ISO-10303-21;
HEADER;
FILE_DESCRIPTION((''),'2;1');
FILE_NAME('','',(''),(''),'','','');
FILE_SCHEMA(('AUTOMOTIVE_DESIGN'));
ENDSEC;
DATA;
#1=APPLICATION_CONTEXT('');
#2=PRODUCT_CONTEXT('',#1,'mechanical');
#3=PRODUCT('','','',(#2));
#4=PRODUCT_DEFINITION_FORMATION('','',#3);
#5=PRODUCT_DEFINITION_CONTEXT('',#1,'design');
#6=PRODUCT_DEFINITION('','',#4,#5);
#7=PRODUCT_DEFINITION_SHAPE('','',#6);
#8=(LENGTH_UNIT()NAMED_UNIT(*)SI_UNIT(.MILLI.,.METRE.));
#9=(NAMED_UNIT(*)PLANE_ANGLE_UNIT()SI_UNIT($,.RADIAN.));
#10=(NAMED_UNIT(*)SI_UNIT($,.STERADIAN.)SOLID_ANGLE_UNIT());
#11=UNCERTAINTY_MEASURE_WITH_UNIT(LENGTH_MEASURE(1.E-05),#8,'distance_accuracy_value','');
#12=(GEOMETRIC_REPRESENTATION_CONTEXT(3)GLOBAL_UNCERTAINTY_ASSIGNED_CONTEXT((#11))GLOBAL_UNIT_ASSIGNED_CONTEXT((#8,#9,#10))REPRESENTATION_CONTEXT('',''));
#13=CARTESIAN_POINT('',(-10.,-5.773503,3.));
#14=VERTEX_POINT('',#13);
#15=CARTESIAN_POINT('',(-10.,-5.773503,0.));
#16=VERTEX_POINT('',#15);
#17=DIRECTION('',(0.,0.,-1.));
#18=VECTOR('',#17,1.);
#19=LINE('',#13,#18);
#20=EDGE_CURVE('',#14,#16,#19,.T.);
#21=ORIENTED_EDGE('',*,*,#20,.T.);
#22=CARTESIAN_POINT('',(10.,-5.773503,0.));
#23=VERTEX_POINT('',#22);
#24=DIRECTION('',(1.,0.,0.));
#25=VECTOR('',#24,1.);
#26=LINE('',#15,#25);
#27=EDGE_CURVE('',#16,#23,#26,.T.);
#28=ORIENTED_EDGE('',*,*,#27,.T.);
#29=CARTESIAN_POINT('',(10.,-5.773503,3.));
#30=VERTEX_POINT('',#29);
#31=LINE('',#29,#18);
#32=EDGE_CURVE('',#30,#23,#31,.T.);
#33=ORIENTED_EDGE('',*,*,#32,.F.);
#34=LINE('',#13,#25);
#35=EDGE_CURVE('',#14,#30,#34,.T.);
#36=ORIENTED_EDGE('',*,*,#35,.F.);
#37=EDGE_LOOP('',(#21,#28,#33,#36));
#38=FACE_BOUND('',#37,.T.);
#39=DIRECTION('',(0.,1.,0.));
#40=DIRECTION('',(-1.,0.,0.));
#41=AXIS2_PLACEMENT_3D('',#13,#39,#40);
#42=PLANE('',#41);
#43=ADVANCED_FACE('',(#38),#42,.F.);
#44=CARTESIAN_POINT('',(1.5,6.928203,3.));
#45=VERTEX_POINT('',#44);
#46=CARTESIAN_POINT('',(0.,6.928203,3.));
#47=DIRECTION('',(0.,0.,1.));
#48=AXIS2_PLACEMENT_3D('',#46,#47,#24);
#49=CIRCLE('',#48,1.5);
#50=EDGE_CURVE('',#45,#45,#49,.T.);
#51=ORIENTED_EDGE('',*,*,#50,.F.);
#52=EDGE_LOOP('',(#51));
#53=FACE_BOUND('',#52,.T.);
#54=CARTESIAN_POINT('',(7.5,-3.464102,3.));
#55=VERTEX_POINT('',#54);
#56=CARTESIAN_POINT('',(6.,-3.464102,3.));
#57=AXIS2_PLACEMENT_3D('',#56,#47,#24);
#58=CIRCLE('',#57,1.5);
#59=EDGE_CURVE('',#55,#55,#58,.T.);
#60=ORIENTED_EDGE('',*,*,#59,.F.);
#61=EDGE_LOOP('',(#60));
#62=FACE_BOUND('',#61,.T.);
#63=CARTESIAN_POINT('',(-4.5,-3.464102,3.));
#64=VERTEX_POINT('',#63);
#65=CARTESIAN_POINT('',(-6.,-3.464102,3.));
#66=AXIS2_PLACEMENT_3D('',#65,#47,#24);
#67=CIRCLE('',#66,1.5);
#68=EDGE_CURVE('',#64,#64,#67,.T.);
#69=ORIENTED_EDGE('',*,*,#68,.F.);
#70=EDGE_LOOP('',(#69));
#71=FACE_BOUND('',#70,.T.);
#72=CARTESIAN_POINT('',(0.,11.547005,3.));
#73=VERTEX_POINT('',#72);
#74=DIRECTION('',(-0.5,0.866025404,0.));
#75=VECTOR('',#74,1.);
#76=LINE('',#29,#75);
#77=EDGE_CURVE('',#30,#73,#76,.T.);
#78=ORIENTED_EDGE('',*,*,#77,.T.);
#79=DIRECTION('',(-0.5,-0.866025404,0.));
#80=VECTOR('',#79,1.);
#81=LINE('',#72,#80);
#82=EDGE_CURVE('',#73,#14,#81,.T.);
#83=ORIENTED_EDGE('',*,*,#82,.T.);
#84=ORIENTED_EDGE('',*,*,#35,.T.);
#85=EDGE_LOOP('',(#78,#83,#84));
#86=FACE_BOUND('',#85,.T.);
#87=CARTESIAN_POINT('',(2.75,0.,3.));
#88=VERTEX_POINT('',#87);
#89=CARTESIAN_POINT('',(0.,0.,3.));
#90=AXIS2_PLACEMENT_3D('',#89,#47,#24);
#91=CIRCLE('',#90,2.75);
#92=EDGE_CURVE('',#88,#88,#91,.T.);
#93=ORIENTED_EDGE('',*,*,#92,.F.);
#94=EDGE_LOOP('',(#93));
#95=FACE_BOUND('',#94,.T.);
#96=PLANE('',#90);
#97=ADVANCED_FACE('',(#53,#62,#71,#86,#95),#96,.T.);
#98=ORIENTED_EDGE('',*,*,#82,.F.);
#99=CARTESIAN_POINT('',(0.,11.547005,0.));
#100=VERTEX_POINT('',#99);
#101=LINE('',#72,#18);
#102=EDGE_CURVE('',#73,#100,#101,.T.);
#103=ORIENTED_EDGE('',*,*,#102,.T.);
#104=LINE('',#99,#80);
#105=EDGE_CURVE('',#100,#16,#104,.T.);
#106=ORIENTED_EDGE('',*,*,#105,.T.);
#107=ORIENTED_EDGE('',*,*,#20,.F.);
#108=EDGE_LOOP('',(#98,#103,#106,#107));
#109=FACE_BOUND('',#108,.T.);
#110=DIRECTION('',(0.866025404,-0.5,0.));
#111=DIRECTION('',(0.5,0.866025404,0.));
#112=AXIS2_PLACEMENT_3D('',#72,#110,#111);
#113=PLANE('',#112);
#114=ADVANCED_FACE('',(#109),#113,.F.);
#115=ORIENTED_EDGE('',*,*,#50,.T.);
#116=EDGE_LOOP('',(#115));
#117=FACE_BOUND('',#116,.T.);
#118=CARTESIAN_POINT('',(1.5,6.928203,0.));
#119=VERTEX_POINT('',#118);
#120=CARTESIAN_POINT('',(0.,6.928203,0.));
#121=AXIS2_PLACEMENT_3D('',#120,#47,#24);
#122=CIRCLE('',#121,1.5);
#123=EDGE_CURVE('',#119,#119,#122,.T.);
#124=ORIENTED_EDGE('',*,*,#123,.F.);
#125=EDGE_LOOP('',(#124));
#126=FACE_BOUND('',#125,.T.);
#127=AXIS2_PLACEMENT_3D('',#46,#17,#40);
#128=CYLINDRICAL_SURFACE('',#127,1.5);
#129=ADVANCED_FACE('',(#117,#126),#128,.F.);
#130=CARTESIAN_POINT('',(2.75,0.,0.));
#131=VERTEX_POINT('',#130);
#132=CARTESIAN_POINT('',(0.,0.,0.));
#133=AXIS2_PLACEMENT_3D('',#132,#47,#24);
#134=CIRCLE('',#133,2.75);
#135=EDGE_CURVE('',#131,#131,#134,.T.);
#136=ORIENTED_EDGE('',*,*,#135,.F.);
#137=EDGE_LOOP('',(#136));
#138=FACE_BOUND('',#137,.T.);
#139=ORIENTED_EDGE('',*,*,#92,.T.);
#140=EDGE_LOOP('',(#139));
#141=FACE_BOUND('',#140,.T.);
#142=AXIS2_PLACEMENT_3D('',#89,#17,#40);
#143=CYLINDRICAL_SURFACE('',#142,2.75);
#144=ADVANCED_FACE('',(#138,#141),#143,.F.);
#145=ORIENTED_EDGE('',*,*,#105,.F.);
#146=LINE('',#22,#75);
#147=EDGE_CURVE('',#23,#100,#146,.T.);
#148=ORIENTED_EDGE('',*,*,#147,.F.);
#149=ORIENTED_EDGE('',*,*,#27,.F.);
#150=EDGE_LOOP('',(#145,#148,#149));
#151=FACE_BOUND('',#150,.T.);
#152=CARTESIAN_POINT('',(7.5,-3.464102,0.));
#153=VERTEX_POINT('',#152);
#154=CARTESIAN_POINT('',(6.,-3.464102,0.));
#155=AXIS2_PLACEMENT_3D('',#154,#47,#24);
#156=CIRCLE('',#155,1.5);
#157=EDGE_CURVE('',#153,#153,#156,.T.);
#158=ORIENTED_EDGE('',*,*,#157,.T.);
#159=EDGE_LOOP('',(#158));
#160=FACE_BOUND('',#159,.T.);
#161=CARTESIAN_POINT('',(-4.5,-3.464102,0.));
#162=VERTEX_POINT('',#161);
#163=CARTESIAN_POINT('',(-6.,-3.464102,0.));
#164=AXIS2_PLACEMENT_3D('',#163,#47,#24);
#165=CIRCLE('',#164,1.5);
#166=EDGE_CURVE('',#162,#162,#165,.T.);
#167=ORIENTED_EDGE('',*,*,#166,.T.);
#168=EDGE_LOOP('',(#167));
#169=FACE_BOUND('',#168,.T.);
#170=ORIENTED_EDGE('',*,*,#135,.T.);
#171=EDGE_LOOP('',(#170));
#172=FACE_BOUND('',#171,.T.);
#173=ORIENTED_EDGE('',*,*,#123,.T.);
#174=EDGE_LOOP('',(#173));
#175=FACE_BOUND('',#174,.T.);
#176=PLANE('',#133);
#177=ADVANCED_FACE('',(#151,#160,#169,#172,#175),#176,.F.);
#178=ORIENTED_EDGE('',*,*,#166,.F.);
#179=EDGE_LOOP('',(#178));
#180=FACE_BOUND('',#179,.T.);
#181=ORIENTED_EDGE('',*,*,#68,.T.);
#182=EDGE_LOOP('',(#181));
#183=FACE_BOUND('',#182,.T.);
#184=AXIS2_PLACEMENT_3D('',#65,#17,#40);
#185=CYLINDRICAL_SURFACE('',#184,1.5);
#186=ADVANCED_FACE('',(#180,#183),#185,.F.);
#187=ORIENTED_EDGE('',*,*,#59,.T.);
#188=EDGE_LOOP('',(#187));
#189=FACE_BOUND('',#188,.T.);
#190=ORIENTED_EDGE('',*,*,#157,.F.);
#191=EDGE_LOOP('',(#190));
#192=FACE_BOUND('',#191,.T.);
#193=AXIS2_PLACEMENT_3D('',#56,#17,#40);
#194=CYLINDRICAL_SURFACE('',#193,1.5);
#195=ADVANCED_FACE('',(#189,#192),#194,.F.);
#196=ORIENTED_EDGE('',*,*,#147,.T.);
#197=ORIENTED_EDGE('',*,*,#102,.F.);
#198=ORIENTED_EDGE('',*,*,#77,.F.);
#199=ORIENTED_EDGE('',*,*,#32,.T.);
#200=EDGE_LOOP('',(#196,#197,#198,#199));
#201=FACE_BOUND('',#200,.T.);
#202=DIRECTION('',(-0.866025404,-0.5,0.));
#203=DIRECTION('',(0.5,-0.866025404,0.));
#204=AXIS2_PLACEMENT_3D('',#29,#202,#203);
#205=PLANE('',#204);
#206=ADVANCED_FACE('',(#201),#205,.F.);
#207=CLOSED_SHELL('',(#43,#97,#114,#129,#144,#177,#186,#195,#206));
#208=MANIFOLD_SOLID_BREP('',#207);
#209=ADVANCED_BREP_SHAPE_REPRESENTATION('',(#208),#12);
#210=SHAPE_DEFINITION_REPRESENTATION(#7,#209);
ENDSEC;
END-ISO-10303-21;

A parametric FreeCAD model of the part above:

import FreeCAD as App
import Part
import Sketcher
Q = App.Units.Quantity

doc = App.newDocument("Part")
params = doc.addObject("Spreadsheet::Sheet", "Params")
for row, (alias, value) in enumerate([
    ("sketch1_diameter", "3 mm"),
    ("sketch1_diameter2", "5.5 mm"),
    ("sketch1_width", "20 mm"),
    ("pad1_length", "3 mm"),
], start=1):
    params.set(f"A{row}", alias)
    params.set(f"B{row}", "=" + value)
    params.setAlias(f"B{row}", alias)

body = doc.addObject("PartDesign::Body", "Body")

# Sketch on XY plane
sketch1 = body.newObject("Sketcher::SketchObject", "Sketch")
sketch1.AttachmentSupport = (doc.getObject("XY_Plane"), [""])
sketch1.MapMode = "FlatFace"
sketch1.addGeometry(Part.LineSegment(App.Vector(0, 11.547005, 0), App.Vector(-10, -5.773503, 0)), False)
sketch1.addGeometry(Part.LineSegment(App.Vector(-10, -5.773503, 0), App.Vector(10, -5.773503, 0)), False)
sketch1.addGeometry(Part.LineSegment(App.Vector(10, -5.773503, 0), App.Vector(0, 11.547005, 0)), False)
sketch1.addGeometry(Part.Circle(App.Vector(-6, -3.464102, 0), App.Vector(0, 0, 1), 1.5), False)
sketch1.addGeometry(Part.Circle(App.Vector(6, -3.464102, 0), App.Vector(0, 0, 1), 1.5), False)
sketch1.addGeometry(Part.Circle(App.Vector(0, 0, 0), App.Vector(0, 0, 1), 2.75), False)
sketch1.addGeometry(Part.Circle(App.Vector(0, 6.928203, 0), App.Vector(0, 0, 1), 1.5), False)
sketch1.addConstraint(Sketcher.Constraint("Coincident", 0, 2, 1, 1))
sketch1.addConstraint(Sketcher.Constraint("Coincident", 1, 2, 2, 1))
sketch1.addConstraint(Sketcher.Constraint("Coincident", 2, 2, 0, 1))
sketch1.addConstraint(Sketcher.Constraint("Horizontal", 1))
sketch1.addConstraint(Sketcher.Constraint("Coincident", 5, 3, -1, 1))
sketch1.addConstraint(Sketcher.Constraint("Equal", 3, 4))
sketch1.addConstraint(Sketcher.Constraint("Equal", 4, 6))
sketch1.addConstraint(Sketcher.Constraint("Symmetric", 3, 3, 4, 3, -2))
sketch1.addConstraint(Sketcher.Constraint("PointOnObject", 6, 3, -2))
sketch1.addConstraint(Sketcher.Constraint("PointOnObject", 2, 2, -2))
sketch1.addConstraint(Sketcher.Constraint("Equal", 0, 2))
sketch1.addConstraint(Sketcher.Constraint("Diameter", 3, 3.0))
sketch1.addConstraint(Sketcher.Constraint("Diameter", 5, 5.5))
sketch1.addConstraint(Sketcher.Constraint("DistanceX", 1, 1, 1, 2, 20.0))
sketch1.addConstraint(Sketcher.Constraint("Angle", 0, Q("-120 deg")))
sketch1.addConstraint(Sketcher.Constraint("DistanceX", 3, 3, -1, 1, 6.0))
sketch1.addConstraint(Sketcher.Constraint("DistanceY", 3, 3, -1, 1, 3.464102))
sketch1.addConstraint(Sketcher.Constraint("DistanceY", 0, 2, 3, 3, 2.309401))
sketch1.addConstraint(Sketcher.Constraint("DistanceY", -1, 1, 6, 3, 6.928203))
sketch1.setExpression("Constraints[11]", "Params.sketch1_diameter")
sketch1.setExpression("Constraints[12]", "Params.sketch1_diameter2")
sketch1.setExpression("Constraints[13]", "Params.sketch1_width")
pad1 = body.newObject("PartDesign::Pad", "Pad")
pad1.Profile = sketch1
pad1.setExpression("Length", "Params.pad1_length")

doc.recompute()
